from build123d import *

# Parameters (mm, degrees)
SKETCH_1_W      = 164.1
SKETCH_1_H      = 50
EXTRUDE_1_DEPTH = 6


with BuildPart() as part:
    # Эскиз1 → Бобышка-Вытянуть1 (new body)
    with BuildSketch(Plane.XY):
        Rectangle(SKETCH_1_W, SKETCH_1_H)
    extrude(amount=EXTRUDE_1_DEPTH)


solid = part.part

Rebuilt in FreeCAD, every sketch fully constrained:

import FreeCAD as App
import Part
import Sketcher
from FreeCAD import Vector
Q = App.Units.Quantity

doc = App.newDocument("Part")
body = doc.addObject("PartDesign::Body", "Body")

# Sketch on XY plane
sketch1 = doc.addObject("Sketcher::SketchObject", "Sketch")
body.addObject(sketch1)
sketch1.AttachmentSupport = (doc.XY_Plane, [""])
sketch1.MapMode = "FlatFace"
sketch1.addGeometry([
    Part.LineSegment(Vector(-82, 25, 0), Vector(-82, -25, 0)),
    Part.LineSegment(Vector(-82, -25, 0), Vector(82, -25, 0)),
    Part.LineSegment(Vector(82, -25, 0), Vector(82, 25, 0)),
    Part.LineSegment(Vector(82, 25, 0), Vector(-82, 25, 0)),
], False)
sketch1.addConstraint([
    Sketcher.Constraint("Coincident", 0, 2, 1, 1),
    Sketcher.Constraint("Coincident", 1, 2, 2, 1),
    Sketcher.Constraint("Coincident", 2, 2, 3, 1),
    Sketcher.Constraint("Coincident", 3, 2, 0, 1),
    Sketcher.Constraint("Vertical", 0),
    Sketcher.Constraint("Horizontal", 1),
    Sketcher.Constraint("Vertical", 2),
    Sketcher.Constraint("Horizontal", 3),
    Sketcher.Constraint("Symmetric", 0, 2, 2, 2, -1, 1),
    Sketcher.Constraint("DistanceY", 0, 2, 0, 1, Q("50 mm")),
    Sketcher.Constraint("DistanceX", 1, 1, 1, 2, Q("164.1 mm")),
])
pad1 = doc.addObject("PartDesign::Pad", "Pad")
body.addObject(pad1)
pad1.Profile = sketch1
pad1.Length = 6

doc.recompute()
